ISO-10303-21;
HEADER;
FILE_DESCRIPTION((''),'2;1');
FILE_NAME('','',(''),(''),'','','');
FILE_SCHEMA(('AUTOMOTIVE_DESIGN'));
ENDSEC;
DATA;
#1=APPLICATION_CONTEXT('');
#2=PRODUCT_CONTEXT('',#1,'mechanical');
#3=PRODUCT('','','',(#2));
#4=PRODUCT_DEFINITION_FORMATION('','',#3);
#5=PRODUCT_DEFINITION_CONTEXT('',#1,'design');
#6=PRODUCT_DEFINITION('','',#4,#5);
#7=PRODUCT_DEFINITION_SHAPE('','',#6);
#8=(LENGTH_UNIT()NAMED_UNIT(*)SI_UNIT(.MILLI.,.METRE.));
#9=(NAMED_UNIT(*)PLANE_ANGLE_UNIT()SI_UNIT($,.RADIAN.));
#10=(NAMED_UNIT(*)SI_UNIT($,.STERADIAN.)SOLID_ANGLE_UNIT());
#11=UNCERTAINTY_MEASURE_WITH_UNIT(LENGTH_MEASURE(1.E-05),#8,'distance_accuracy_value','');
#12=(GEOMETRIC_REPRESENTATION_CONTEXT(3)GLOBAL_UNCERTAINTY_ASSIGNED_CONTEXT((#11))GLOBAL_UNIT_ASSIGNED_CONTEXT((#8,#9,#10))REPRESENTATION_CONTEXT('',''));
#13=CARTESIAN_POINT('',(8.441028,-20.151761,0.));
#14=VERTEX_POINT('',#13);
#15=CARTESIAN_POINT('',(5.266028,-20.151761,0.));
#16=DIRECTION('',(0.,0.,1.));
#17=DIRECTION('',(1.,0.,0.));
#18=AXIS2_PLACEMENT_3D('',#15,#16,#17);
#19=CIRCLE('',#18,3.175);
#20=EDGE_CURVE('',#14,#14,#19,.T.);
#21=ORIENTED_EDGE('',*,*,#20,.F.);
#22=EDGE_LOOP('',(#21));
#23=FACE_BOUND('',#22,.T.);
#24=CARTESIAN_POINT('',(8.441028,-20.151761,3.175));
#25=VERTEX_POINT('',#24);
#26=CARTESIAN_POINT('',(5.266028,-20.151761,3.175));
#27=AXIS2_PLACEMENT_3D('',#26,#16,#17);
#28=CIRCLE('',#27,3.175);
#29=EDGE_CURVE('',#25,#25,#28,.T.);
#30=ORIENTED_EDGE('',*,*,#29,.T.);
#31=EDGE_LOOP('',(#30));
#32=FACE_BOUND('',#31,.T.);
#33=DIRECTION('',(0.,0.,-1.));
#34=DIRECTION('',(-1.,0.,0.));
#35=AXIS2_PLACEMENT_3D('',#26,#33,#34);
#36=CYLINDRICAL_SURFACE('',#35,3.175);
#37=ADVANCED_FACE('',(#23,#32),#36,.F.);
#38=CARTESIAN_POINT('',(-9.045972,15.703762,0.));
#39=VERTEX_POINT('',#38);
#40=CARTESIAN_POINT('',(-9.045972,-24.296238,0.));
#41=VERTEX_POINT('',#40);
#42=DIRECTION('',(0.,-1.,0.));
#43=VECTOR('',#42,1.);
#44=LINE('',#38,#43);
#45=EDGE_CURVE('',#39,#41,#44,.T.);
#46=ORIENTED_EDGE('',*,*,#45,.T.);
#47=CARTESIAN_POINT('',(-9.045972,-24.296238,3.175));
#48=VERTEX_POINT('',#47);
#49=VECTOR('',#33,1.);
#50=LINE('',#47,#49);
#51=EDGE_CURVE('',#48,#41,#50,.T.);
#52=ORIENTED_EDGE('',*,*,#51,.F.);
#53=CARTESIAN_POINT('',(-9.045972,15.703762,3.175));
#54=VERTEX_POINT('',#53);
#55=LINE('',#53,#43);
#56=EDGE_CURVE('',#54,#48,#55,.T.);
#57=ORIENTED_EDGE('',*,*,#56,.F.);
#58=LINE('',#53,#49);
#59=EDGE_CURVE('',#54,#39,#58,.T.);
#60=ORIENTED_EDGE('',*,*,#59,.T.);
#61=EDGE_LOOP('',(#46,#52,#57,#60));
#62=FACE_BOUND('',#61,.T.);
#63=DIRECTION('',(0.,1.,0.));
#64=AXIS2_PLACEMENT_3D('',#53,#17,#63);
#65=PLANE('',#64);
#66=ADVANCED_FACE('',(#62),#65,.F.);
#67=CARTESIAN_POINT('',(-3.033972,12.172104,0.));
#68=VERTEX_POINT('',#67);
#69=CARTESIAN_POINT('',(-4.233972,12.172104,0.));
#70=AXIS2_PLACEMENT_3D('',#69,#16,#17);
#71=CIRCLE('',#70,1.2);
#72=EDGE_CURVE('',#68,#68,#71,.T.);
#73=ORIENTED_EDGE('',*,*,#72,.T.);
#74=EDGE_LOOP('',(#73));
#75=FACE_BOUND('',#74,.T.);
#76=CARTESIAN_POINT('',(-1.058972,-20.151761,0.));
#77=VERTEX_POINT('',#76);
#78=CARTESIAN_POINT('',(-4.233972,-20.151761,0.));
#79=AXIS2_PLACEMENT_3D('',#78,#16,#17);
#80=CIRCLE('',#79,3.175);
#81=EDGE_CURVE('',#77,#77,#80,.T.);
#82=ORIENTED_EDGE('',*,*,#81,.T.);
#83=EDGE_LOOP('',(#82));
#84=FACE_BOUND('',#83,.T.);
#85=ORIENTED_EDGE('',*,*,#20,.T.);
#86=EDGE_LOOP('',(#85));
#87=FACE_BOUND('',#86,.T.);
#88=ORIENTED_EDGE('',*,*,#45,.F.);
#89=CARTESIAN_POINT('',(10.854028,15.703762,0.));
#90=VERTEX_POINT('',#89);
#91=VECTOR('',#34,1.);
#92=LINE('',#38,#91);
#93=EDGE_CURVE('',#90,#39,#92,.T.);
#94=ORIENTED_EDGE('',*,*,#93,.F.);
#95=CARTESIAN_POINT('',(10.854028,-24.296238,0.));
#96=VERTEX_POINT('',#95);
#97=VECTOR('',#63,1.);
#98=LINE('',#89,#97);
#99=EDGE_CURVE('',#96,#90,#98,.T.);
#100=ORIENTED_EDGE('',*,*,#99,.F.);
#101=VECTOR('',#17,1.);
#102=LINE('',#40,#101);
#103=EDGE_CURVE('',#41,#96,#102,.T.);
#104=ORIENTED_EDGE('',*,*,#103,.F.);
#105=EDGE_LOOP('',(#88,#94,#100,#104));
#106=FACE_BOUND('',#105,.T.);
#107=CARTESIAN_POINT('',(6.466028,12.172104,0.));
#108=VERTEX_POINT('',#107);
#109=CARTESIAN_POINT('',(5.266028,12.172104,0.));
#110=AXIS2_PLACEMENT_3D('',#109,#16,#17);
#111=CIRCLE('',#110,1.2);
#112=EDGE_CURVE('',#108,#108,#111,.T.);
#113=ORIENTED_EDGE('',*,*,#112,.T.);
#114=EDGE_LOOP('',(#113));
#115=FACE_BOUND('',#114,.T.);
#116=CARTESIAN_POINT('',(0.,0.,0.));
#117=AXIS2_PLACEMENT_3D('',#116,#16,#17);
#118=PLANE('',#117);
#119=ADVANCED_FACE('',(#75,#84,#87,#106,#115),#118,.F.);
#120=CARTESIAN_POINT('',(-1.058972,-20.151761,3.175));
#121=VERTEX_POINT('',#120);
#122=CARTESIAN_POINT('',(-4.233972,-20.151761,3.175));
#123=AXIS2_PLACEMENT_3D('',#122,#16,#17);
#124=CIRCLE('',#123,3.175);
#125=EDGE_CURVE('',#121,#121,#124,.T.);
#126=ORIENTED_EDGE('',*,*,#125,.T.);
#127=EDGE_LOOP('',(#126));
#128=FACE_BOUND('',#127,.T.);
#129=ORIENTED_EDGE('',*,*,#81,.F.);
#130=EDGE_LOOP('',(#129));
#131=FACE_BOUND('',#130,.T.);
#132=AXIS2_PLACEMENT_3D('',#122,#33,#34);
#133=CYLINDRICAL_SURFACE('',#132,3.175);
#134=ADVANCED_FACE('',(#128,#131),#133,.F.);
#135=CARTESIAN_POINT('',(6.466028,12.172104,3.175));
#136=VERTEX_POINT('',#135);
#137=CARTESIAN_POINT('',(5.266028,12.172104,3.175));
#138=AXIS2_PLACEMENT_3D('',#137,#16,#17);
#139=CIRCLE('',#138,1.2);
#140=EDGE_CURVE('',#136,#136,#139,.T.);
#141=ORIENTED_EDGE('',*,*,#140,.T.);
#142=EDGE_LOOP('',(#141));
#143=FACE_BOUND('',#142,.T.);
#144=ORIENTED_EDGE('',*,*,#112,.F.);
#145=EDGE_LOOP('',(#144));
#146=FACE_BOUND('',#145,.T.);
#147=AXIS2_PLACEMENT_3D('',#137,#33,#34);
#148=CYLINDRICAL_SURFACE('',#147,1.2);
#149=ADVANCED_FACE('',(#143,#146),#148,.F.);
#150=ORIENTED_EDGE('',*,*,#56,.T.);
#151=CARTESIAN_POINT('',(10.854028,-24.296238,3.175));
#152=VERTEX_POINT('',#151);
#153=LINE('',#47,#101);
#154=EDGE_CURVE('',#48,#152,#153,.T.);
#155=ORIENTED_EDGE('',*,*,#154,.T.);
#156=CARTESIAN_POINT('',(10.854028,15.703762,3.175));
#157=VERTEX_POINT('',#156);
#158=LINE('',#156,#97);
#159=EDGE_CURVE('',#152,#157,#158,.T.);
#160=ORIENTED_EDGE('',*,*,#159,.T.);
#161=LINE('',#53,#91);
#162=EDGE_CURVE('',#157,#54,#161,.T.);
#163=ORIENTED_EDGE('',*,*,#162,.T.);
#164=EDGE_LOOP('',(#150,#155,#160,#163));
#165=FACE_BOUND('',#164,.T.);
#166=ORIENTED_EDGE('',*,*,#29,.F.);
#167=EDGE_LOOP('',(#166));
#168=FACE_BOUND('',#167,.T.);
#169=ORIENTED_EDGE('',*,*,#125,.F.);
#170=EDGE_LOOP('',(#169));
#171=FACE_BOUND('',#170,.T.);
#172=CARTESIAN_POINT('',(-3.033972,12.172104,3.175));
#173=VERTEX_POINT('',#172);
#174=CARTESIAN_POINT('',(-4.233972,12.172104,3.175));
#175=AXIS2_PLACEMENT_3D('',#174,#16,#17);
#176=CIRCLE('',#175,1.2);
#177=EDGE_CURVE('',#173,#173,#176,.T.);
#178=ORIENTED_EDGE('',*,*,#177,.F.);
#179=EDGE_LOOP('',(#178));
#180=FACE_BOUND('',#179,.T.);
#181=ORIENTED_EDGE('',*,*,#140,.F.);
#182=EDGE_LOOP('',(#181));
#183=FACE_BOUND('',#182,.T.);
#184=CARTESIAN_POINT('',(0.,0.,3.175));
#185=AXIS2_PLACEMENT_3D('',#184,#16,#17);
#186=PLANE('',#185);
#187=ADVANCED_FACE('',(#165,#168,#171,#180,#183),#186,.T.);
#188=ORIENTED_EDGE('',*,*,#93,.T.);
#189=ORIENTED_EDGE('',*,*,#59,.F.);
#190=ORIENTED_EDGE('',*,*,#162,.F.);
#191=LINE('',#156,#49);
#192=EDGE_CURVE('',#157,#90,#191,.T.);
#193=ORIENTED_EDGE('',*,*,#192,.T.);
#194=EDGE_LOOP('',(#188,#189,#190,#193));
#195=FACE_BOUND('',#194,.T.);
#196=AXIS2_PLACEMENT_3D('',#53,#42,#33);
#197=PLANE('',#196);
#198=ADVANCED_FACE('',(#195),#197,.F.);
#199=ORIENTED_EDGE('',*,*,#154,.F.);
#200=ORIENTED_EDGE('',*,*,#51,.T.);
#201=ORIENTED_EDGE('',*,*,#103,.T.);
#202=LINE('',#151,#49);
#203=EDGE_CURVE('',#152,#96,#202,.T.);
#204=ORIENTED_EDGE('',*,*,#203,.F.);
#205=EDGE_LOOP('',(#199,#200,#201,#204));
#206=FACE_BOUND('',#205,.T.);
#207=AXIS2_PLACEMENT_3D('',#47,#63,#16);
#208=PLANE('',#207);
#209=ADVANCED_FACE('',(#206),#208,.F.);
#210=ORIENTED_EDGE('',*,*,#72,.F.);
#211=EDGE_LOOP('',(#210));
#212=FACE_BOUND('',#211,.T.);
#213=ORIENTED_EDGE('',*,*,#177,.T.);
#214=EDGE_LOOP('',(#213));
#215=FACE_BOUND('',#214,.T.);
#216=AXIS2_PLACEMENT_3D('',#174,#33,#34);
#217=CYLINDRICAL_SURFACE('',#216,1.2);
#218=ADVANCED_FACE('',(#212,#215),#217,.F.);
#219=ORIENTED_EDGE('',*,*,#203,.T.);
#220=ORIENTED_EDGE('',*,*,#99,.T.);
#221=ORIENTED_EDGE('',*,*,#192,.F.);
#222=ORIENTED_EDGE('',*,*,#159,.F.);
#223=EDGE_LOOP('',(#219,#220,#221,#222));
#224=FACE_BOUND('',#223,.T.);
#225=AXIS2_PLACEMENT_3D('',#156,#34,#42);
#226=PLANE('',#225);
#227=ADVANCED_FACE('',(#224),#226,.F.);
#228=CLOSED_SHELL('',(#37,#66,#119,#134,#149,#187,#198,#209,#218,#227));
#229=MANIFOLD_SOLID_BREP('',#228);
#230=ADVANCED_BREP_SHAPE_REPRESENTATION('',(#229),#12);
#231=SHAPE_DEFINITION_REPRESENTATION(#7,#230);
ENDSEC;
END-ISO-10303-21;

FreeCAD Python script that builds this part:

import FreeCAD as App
import Part
import Sketcher
Q = App.Units.Quantity

doc = App.newDocument("Part")
body = doc.addObject("PartDesign::Body", "Body")

sketch1 = body.newObject("Sketcher::SketchObject", "Sketch")
sketch1.AttachmentSupport = (doc.getObject("XY_Plane"), [""])
sketch1.MapMode = "FlatFace"
sketch1.addGeometry(Part.LineSegment(App.Vector(-9.045972, 15.703762, 0), App.Vector(-9.045972, -24.296238, 0)), False)
sketch1.addGeometry(Part.LineSegment(App.Vector(-9.045972, -24.296238, 0), App.Vector(10.854028, -24.296238, 0)), False)
sketch1.addGeometry(Part.LineSegment(App.Vector(10.854028, -24.296238, 0), App.Vector(10.854028, 15.703762, 0)), False)
sketch1.addGeometry(Part.LineSegment(App.Vector(10.854028, 15.703762, 0), App.Vector(-9.045972, 15.703762, 0)), False)
sketch1.addGeometry(Part.Circle(App.Vector(-4.233972, -20.151761, 0), App.Vector(0, 0, 1), 3.175), False)
sketch1.addGeometry(Part.Circle(App.Vector(5.266028, -20.151761, 0), App.Vector(0, 0, 1), 3.175), False)
sketch1.addGeometry(Part.Circle(App.Vector(-4.233972, 12.172104, 0), App.Vector(0, 0, 1), 1.2), False)
sketch1.addGeometry(Part.Circle(App.Vector(5.266028, 12.172104, 0), App.Vector(0, 0, 1), 1.2), False)
sketch1.addConstraint(Sketcher.Constraint("Coincident", 0, 2, 1, 1))
sketch1.addConstraint(Sketcher.Constraint("Coincident", 1, 2, 2, 1))
sketch1.addConstraint(Sketcher.Constraint("Coincident", 2, 2, 3, 1))
sketch1.addConstraint(Sketcher.Constraint("Coincident", 3, 2, 0, 1))
sketch1.addConstraint(Sketcher.Constraint("Vertical", 0))
sketch1.addConstraint(Sketcher.Constraint("Horizontal", 1))
sketch1.addConstraint(Sketcher.Constraint("Vertical", 2))
sketch1.addConstraint(Sketcher.Constraint("Horizontal", 3))
sketch1.addConstraint(Sketcher.Constraint("Equal", 4, 5))
sketch1.addConstraint(Sketcher.Constraint("Equal", 6, 7))
sketch1.addConstraint(Sketcher.Constraint("Horizontal", 4, 3, 5, 3))
sketch1.addConstraint(Sketcher.Constraint("Horizontal", 6, 3, 7, 3))
sketch1.addConstraint(Sketcher.Constraint("Vertical", 4, 3, 6, 3))
sketch1.addConstraint(Sketcher.Constraint("Vertical", 5, 3, 7, 3))
sketch1.addConstraint(Sketcher.Constraint("Diameter", 6, Q("2.4 mm")))
sketch1.addConstraint(Sketcher.Constraint("Diameter", 4, Q("6.35 mm")))
sketch1.addConstraint(Sketcher.Constraint("DistanceY", 0, 2, 0, 1, Q("40 mm")))
sketch1.addConstraint(Sketcher.Constraint("DistanceX", 1, 1, 1, 2, Q("19.9 mm")))
sketch1.addConstraint(Sketcher.Constraint("DistanceX", 4, 3, 5, 3, Q("9.5 mm")))
sketch1.addConstraint(Sketcher.Constraint("DistanceX", 0, 2, 4, 3, Q("4.812 mm")))
sketch1.addConstraint(Sketcher.Constraint("DistanceX", 4, 3, -1, 1, Q("4.233972 mm")))
sketch1.addConstraint(Sketcher.Constraint("DistanceY", 4, 3, -1, 1, Q("20.151761 mm")))
sketch1.addConstraint(Sketcher.Constraint("DistanceY", 0, 2, -1, 1, Q("24.296238 mm")))
sketch1.addConstraint(Sketcher.Constraint("DistanceY", -1, 1, 6, 3, Q("12.172104 mm")))
pad1 = body.newObject("PartDesign::Pad", "Pad")
pad1.Profile = sketch1
pad1.Length = 3.175

doc.recompute()
